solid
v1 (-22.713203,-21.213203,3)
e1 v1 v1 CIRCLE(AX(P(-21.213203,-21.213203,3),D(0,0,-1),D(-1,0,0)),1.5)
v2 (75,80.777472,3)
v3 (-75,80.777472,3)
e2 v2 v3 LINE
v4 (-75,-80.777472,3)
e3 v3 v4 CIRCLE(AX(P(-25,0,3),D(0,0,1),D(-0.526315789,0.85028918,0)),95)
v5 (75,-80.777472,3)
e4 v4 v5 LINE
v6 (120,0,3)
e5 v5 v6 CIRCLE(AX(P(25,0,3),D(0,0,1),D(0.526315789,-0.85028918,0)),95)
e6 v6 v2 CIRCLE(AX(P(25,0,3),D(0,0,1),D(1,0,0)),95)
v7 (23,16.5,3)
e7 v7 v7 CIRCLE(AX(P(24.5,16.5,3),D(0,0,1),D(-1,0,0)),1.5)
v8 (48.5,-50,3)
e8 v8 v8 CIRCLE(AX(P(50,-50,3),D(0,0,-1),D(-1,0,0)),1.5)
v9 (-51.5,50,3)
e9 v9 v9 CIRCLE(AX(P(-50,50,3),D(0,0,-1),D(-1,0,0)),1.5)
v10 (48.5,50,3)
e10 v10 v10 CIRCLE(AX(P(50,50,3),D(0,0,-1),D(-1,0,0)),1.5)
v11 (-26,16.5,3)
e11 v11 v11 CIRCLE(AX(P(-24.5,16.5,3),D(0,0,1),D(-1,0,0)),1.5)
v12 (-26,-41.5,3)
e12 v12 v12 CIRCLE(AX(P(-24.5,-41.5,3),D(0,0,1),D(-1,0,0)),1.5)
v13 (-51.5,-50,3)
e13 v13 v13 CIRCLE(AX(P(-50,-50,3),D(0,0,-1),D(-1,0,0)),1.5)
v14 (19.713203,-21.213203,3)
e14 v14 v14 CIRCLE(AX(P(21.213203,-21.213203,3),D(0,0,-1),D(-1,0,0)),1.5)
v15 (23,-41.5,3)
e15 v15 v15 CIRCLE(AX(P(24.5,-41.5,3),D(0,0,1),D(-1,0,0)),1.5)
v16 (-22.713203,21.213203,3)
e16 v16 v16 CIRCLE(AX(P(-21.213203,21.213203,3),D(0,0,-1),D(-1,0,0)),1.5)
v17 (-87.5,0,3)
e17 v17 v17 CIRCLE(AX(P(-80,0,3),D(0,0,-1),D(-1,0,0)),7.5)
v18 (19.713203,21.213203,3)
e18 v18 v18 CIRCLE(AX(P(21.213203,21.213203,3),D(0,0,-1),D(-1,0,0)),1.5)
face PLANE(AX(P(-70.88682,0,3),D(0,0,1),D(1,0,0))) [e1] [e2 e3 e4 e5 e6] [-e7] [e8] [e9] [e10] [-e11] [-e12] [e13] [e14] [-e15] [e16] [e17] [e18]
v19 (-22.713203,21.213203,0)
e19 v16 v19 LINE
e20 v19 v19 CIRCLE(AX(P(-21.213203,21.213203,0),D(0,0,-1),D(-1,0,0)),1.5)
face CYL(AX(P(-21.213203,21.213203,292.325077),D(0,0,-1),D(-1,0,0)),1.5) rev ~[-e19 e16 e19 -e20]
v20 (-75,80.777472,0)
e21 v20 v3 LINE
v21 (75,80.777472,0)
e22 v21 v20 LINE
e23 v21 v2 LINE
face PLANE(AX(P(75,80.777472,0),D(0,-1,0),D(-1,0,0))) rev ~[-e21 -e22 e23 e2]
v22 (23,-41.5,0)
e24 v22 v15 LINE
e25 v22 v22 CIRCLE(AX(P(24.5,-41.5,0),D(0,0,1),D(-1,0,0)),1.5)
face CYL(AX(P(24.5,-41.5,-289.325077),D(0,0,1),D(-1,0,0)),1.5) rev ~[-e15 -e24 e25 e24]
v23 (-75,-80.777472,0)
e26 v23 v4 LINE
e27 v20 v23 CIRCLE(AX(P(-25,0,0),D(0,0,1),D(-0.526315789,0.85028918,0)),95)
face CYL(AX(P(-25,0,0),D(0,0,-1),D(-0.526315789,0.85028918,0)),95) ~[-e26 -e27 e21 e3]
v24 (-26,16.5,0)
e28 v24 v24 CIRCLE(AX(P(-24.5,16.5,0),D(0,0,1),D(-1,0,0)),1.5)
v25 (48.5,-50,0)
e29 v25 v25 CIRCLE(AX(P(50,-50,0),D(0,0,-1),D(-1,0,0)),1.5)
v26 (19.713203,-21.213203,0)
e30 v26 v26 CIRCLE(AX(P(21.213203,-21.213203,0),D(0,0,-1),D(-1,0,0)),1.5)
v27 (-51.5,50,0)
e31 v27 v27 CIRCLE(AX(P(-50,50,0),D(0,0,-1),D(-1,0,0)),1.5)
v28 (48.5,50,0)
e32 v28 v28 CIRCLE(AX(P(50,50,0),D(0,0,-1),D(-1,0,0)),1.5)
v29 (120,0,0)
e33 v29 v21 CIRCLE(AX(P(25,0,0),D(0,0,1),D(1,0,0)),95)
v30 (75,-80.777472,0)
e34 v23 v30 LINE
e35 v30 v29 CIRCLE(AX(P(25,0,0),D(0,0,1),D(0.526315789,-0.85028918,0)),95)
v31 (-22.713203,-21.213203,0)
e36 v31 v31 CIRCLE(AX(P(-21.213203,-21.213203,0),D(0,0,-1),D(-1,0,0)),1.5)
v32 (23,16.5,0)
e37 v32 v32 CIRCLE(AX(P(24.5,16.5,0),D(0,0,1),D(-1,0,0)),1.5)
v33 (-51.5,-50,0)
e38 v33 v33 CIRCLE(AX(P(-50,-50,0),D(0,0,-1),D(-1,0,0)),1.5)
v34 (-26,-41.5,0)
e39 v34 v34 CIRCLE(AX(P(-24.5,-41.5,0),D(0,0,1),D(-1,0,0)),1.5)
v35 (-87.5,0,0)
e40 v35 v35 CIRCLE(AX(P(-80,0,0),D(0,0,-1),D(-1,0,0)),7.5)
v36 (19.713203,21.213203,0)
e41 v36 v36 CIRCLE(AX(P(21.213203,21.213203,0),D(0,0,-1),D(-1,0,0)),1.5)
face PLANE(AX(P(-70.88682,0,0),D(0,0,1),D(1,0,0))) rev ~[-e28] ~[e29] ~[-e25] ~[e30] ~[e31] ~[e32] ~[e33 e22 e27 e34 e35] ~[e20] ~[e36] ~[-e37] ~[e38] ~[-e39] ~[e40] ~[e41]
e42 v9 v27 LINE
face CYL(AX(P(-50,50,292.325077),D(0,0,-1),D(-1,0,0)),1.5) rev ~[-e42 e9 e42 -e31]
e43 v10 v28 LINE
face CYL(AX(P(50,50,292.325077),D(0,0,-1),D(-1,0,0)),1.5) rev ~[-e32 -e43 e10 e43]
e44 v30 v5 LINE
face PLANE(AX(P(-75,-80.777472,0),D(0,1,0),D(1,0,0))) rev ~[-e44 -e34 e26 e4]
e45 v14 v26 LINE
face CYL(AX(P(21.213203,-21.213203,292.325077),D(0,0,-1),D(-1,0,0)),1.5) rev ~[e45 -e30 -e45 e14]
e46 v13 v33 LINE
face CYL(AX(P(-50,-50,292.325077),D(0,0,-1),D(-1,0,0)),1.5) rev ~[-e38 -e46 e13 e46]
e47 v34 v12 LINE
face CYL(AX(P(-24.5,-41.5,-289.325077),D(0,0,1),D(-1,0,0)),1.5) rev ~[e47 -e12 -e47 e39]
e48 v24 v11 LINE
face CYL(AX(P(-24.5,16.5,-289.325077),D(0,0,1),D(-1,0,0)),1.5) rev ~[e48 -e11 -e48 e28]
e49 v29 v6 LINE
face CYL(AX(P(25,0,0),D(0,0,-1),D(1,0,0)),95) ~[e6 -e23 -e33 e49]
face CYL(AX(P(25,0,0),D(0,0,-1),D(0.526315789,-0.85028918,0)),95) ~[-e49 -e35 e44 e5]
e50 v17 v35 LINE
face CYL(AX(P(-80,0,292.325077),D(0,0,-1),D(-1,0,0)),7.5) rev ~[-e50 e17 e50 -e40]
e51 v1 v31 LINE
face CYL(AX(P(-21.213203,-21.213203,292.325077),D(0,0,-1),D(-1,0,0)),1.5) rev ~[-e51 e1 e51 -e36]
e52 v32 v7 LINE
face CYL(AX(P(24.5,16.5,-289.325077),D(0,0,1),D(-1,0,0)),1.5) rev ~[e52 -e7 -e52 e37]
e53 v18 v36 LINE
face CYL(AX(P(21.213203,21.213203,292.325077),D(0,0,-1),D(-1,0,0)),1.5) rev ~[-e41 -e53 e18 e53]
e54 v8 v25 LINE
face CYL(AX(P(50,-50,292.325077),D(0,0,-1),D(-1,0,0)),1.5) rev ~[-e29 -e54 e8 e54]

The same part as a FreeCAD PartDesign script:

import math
import FreeCAD as App
import Part
import Sketcher
from FreeCAD import Vector

doc = App.newDocument("Part")
body = doc.addObject("PartDesign::Body", "Body")

# Sketch on XY plane
sketch1 = doc.addObject("Sketcher::SketchObject", "Sketch")
body.addObject(sketch1)
sketch1.AttachmentSupport = (doc.XY_Plane, [""])
sketch1.MapMode = "FlatFace"
sketch1.addGeometry([
    Part.ArcOfCircle(Part.Circle(Vector(-25, 0, 0), Vector(0, 0, 1), 95), math.radians(122), math.radians(238)),  # 0
    Part.LineSegment(Vector(-75, -81, 0), Vector(75, -81, 0)),  # 1
    Part.ArcOfCircle(Part.Circle(Vector(25, 0, 0), Vector(0, 0, 1), 95), math.radians(-58), math.radians(0)),  # 2
    Part.ArcOfCircle(Part.Circle(Vector(25, 0, 0), Vector(0, 0, 1), 95), math.radians(0), math.radians(58)),  # 3
    Part.LineSegment(Vector(75, 81, 0), Vector(-75, 81, 0)),  # 4
], False)
sketch1.addConstraint([
    Sketcher.Constraint("Coincident", 0, 2, 1, 1),
    Sketcher.Constraint("Coincident", 1, 2, 2, 1),
    Sketcher.Constraint("Tangent", 2, 2, 3, 1),
    Sketcher.Constraint("Coincident", 3, 2, 4, 1),
    Sketcher.Constraint("Coincident", 4, 2, 0, 1),
    Sketcher.Constraint("Horizontal", 1),
    Sketcher.Constraint("Horizontal", 4),
    Sketcher.Constraint("Equal", 0, 2),
    Sketcher.Constraint("Equal", 2, 3),
    Sketcher.Constraint("Symmetric", 0, 3, 2, 3, -1, 1),
    Sketcher.Constraint("Symmetric", 1, 2, 3, 2, -1),
    Sketcher.Constraint("PointOnObject", 2, 2, -1),
    Sketcher.Constraint("Radius", 0, 95.0),
    Sketcher.Constraint("DistanceX", 1, 1, 1, 2, 150.0),
    Sketcher.Constraint("DistanceX", 0, 3, -1, 1, 25.0),
])
pad1 = doc.addObject("PartDesign::Pad", "Pad")
body.addObject(pad1)
pad1.Profile = sketch1
pad1.Length = 3

# Sketch on XY plane
sketch2 = doc.addObject("Sketcher::SketchObject", "Sketch001")
body.addObject(sketch2)
sketch2.AttachmentSupport = (doc.XY_Plane, [""])
sketch2.MapMode = "FlatFace"
sketch2.AttachmentOffset = App.Placement(Vector(0, 0, 3), App.Rotation())
sketch2.addGeometry([
    Part.Circle(Vector(-50, 50, 0), Vector(0, 0, 1), 1.5),
    Part.Circle(Vector(50, 50, 0), Vector(0, 0, 1), 1.5),
    Part.Circle(Vector(50, -50, 0), Vector(0, 0, 1), 1.5),
    Part.Circle(Vector(-50, -50, 0), Vector(0, 0, 1), 1.5),
], False)
sketch2.addConstraint([
    Sketcher.Constraint("Equal", 0, 1),
    Sketcher.Constraint("Equal", 1, 2),
    Sketcher.Constraint("Equal", 2, 3),
    Sketcher.Constraint("Symmetric", 0, 3, 2, 3, -1, 1),
    Sketcher.Constraint("Symmetric", 1, 3, 3, 3, -1, 1),
    Sketcher.Constraint("Symmetric", 0, 3, 1, 3, -2),
    Sketcher.Constraint("Diameter", 0, 3.0),
    Sketcher.Constraint("DistanceX", 0, 3, -1, 1, 50.0),
    Sketcher.Constraint("DistanceY", -1, 1, 0, 3, 50.0),
])
doc.recompute()
hole = doc.addObject("PartDesign::Hole", "Hole")
body.addObject(hole)
hole.Profile = sketch2
hole.ThreadType = "None"
hole.Diameter = 3
hole.DepthType = "ThroughAll"

# Sketch on XY plane
sketch3 = doc.addObject("Sketcher::SketchObject", "Sketch002")
body.addObject(sketch3)
sketch3.AttachmentSupport = (doc.XY_Plane, [""])
sketch3.MapMode = "FlatFace"
sketch3.AttachmentOffset = App.Placement(Vector(0, 0, 3), App.Rotation())
sketch3.addGeometry([
    Part.Circle(Vector(-21.2, 21.2, 0), Vector(0, 0, 1), 1.5),
    Part.Circle(Vector(21.2, 21.2, 0), Vector(0, 0, 1), 1.5),
    Part.Circle(Vector(21.2, -21.2, 0), Vector(0, 0, 1), 1.5),
    Part.Circle(Vector(-21.2, -21.2, 0), Vector(0, 0, 1), 1.5),
], False)
sketch3.addConstraint([
    Sketcher.Constraint("Equal", 0, 1),
    Sketcher.Constraint("Equal", 1, 2),
    Sketcher.Constraint("Equal", 2, 3),
    Sketcher.Constraint("Symmetric", 0, 3, 2, 3, -1, 1),
    Sketcher.Constraint("Symmetric", 1, 3, 3, 3, -1, 1),
    Sketcher.Constraint("Symmetric", 0, 3, 1, 3, -2),
    Sketcher.Constraint("Diameter", 0, 3.0),
    Sketcher.Constraint("DistanceX", 0, 3, -1, 1, 21.213203),
    Sketcher.Constraint("DistanceY", -1, 1, 0, 3, 21.213203),
])
doc.recompute()
hole2 = doc.addObject("PartDesign::Hole", "Hole001")
body.addObject(hole2)
hole2.Profile = sketch3
hole2.ThreadType = "None"
hole2.Diameter = 3
hole2.DepthType = "ThroughAll"

# Sketch on XY plane
sketch4 = doc.addObject("Sketcher::SketchObject", "Sketch003")
body.addObject(sketch4)
sketch4.AttachmentSupport = (doc.XY_Plane, [""])
sketch4.MapMode = "FlatFace"
sketch4.addGeometry([
    Part.Circle(Vector(-24.5, -41.5, 0), Vector(0, 0, 1), 1.5),
    Part.Circle(Vector(24.5, -41.5, 0), Vector(0, 0, 1), 1.5),
    Part.Circle(Vector(24.5, 16.5, 0), Vector(0, 0, 1), 1.5),
    Part.Circle(Vector(-24.5, 16.5, 0), Vector(0, 0, 1), 1.5),
], False)
sketch4.addConstraint([
    Sketcher.Constraint("Equal", 0, 1),
    Sketcher.Constraint("Equal", 1, 2),
    Sketcher.Constraint("Equal", 2, 3),
    Sketcher.Constraint("Symmetric", 0, 3, 1, 3, -2),
    Sketcher.Constraint("Symmetric", 2, 3, 3, 3, -2),
    Sketcher.Constraint("Vertical", 1, 3, 2, 3),
    Sketcher.Constraint("Diameter", 0, 3.0),
    Sketcher.Constraint("DistanceX", 0, 3, 1, 3, 49.0),
    Sketcher.Constraint("DistanceY", 1, 3, 2, 3, 58.0),
    Sketcher.Constraint("DistanceY", 0, 3, -1, 1, 41.5),
])
doc.recompute()
hole3 = doc.addObject("PartDesign::Hole", "Hole002")
body.addObject(hole3)
hole3.Profile = sketch4
hole3.ThreadType = "None"
hole3.Diameter = 3
hole3.DepthType = "ThroughAll"
hole3.Reversed = True

# Sketch on XY plane
sketch5 = doc.addObject("Sketcher::SketchObject", "Sketch004")
body.addObject(sketch5)
sketch5.AttachmentSupport = (doc.XY_Plane, [""])
sketch5.MapMode = "FlatFace"
sketch5.AttachmentOffset = App.Placement(Vector(0, 0, 3), App.Rotation())
sketch5.addGeometry(Part.Circle(Vector(-80, 0, 0), Vector(0, 0, 1), 8), False)
sketch5.addConstraint([
    Sketcher.Constraint("PointOnObject", 0, 3, -1),
    Sketcher.Constraint("Diameter", 0, 15.0),
    Sketcher.Constraint("DistanceX", 0, 3, -1, 1, 80.0),
])
doc.recompute()
hole4 = doc.addObject("PartDesign::Hole", "Hole003")
body.addObject(hole4)
hole4.Profile = sketch5
hole4.ThreadType = "None"
hole4.Diameter = 15
hole4.DepthType = "ThroughAll"

doc.recompute()
